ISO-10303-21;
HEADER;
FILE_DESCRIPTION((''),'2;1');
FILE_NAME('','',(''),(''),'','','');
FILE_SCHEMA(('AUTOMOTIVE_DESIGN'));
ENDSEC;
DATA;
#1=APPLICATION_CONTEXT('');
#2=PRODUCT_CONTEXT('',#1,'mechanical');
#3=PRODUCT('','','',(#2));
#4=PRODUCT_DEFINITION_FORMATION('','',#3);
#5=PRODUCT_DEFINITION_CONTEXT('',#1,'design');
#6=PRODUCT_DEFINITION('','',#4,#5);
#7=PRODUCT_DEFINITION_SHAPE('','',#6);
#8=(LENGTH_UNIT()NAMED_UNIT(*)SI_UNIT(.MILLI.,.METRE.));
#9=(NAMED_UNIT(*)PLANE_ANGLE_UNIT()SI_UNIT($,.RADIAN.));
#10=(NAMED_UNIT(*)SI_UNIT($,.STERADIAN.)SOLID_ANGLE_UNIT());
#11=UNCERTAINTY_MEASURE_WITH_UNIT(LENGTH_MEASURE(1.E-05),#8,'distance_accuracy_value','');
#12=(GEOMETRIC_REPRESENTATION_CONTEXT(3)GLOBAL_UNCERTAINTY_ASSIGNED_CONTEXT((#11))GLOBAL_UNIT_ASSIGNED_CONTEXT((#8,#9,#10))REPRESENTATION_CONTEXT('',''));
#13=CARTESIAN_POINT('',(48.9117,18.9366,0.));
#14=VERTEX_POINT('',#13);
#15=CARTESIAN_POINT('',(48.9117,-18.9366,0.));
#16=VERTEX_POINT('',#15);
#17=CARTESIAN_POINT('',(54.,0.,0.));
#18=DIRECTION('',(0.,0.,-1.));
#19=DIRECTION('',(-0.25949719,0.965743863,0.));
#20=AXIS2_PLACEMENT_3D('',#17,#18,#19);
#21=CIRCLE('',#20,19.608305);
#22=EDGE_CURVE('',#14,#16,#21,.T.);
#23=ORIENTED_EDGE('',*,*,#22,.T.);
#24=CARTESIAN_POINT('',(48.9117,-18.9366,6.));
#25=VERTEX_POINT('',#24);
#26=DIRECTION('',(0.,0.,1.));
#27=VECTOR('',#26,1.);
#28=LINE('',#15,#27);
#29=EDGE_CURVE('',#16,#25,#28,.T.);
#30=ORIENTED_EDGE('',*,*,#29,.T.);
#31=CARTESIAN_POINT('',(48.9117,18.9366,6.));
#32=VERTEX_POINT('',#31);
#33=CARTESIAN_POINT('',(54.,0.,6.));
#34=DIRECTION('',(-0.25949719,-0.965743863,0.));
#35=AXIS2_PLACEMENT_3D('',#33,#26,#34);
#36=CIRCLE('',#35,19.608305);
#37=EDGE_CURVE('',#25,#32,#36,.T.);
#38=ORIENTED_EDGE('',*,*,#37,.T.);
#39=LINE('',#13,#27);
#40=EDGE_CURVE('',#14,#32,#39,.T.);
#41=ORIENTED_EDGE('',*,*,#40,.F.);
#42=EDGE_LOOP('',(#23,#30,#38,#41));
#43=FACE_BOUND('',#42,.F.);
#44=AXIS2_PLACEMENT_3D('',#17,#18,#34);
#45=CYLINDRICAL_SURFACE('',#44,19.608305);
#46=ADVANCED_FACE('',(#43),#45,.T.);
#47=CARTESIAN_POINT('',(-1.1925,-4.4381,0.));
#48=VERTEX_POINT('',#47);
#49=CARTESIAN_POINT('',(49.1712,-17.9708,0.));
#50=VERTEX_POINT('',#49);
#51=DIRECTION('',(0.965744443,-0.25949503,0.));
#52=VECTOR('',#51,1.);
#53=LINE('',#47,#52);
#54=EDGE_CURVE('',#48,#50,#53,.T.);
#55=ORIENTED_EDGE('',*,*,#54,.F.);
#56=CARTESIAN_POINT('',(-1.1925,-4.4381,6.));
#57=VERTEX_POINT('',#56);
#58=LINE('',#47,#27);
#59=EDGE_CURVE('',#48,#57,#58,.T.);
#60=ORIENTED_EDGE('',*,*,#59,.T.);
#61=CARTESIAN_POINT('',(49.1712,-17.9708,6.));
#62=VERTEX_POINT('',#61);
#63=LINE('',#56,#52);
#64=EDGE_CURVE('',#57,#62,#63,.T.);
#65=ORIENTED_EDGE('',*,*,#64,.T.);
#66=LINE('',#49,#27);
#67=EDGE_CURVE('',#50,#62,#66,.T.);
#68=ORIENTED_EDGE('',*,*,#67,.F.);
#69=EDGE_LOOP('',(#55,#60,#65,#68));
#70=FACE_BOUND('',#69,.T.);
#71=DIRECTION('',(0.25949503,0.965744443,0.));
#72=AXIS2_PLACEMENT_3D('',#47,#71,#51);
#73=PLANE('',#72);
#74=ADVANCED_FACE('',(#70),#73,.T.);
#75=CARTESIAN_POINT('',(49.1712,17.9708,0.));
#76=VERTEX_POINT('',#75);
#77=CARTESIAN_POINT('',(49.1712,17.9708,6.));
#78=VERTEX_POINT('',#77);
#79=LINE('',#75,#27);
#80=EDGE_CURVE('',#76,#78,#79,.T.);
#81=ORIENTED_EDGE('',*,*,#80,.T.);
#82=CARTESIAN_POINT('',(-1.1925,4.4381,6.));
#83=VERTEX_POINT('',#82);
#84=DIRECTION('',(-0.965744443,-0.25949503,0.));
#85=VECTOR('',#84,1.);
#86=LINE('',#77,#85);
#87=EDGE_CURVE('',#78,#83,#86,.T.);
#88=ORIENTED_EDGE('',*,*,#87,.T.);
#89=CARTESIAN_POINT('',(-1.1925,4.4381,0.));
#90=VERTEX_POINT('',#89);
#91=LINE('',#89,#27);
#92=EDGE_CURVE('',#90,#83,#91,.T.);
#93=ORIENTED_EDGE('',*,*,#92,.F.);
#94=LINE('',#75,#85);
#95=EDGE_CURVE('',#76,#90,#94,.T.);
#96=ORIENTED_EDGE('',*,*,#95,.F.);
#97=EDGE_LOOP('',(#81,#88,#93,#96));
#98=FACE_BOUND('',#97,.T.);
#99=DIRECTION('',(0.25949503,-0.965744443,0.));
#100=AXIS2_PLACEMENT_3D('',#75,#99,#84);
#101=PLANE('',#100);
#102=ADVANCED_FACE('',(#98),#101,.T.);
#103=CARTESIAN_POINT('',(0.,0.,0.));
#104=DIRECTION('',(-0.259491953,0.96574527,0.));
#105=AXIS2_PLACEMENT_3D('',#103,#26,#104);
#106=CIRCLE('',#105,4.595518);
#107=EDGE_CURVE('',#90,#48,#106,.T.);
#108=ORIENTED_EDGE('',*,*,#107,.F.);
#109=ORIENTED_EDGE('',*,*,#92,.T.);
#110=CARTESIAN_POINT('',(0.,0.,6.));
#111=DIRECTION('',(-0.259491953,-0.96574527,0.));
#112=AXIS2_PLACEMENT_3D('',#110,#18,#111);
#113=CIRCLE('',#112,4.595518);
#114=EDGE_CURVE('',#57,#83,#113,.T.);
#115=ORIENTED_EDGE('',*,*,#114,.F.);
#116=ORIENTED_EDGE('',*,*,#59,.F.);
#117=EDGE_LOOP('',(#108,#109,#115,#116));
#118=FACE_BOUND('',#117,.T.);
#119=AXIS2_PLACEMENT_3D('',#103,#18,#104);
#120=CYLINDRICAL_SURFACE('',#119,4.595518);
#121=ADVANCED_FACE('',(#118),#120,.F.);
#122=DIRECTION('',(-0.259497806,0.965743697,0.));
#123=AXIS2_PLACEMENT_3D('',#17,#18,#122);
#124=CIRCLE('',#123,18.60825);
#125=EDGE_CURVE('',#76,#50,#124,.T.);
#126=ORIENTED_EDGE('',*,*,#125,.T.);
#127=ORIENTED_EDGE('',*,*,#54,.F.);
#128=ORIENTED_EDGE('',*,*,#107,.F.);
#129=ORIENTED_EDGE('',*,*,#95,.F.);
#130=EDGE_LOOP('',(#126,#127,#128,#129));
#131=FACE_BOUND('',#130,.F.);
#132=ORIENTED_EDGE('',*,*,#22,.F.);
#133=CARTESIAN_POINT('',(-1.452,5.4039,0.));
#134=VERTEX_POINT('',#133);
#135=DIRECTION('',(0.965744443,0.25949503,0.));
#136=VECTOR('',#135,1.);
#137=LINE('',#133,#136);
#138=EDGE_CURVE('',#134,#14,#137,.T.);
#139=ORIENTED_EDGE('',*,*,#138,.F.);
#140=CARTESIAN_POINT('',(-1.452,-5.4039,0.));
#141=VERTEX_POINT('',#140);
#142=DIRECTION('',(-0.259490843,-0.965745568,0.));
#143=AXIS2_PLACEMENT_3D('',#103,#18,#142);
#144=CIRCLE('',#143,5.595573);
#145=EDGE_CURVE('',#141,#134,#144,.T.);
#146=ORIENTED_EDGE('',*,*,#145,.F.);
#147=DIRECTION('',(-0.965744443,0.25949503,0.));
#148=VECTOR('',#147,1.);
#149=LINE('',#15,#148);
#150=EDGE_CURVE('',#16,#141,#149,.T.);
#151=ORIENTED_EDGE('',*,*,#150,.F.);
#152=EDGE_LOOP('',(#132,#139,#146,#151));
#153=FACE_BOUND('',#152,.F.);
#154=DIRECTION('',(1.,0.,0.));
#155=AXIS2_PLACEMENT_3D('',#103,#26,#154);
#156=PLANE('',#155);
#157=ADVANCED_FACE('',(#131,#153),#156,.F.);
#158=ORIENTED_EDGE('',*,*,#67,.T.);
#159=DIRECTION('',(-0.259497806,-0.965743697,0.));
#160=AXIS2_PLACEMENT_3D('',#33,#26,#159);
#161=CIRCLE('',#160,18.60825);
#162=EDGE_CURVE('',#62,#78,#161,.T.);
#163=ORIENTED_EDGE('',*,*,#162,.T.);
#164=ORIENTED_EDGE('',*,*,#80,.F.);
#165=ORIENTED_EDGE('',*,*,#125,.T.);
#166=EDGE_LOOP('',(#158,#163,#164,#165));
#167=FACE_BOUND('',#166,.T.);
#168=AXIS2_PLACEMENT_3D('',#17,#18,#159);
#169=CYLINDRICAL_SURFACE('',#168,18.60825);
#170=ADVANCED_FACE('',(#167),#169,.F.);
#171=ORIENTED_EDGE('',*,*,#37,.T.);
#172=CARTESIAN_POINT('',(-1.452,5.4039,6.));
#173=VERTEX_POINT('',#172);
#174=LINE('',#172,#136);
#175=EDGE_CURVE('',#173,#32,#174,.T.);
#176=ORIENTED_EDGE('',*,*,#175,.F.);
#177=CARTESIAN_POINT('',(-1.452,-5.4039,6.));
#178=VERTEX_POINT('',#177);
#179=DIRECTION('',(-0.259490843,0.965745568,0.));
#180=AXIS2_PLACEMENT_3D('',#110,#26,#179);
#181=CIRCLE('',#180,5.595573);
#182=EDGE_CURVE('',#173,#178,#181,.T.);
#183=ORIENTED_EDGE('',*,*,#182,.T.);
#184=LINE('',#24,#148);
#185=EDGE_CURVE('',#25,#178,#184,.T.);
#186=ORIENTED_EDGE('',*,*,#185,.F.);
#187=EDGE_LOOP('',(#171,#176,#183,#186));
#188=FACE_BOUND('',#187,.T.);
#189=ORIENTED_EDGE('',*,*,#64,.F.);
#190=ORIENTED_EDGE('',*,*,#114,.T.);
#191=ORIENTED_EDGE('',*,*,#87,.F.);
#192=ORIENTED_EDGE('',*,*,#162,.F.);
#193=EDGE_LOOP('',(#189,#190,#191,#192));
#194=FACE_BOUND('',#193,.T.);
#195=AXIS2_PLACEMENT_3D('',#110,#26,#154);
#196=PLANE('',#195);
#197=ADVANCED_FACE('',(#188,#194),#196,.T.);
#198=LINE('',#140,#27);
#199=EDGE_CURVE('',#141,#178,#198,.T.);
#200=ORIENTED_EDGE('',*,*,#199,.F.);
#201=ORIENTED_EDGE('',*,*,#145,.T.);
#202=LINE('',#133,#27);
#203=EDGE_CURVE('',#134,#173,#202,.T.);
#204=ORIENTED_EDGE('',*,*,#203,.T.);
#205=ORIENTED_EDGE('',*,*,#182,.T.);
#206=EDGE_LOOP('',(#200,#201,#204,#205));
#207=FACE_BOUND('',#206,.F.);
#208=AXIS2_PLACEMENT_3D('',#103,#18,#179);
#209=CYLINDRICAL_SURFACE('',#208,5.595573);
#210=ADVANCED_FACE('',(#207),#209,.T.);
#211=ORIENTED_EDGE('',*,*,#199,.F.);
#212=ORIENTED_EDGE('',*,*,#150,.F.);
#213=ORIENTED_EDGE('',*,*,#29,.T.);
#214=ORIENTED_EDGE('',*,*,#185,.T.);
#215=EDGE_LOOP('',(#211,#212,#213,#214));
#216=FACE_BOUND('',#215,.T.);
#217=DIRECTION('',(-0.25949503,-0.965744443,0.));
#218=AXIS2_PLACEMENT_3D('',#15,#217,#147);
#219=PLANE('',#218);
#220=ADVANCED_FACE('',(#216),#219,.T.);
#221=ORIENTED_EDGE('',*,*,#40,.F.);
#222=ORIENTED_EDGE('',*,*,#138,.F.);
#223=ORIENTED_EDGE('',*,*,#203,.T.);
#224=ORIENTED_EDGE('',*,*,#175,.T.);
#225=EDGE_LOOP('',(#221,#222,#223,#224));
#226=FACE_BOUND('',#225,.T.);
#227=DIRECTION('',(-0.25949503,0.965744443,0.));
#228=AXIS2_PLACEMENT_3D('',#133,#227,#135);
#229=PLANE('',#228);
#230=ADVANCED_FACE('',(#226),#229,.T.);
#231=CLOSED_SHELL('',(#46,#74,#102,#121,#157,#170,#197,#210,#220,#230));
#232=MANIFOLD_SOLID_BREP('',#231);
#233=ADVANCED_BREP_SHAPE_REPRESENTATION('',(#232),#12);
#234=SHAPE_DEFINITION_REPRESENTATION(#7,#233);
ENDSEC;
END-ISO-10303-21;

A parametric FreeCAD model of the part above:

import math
import FreeCAD as App
import Part
import Sketcher
from FreeCAD import Vector
Q = App.Units.Quantity

doc = App.newDocument("Part")
body = doc.addObject("PartDesign::Body", "Body")

# Sketch on XY plane
sketch1 = body.newObject("Sketcher::SketchObject", "Sketch")
sketch1.AttachmentSupport = (doc.getObject("XY_Plane"), [""])
sketch1.MapMode = "FlatFace"
sketch1.addGeometry([
    Part.ArcOfCircle(Part.Circle(Vector(0, 0, 0), Vector(0, 0, 1), 5.595573), math.radians(105.039853), math.radians(254.960147)),  # 0
    Part.LineSegment(Vector(-1.452, -5.4039, 0), Vector(48.9117, -18.9366, 0)),  # 1
    Part.ArcOfCircle(Part.Circle(Vector(54, 0, 0), Vector(0, 0, 1), 19.608305), math.radians(-105.040229), math.radians(105.040229)),  # 2
    Part.LineSegment(Vector(48.9117, 18.9366, 0), Vector(-1.452, 5.4039, 0)),  # 3
    Part.ArcOfCircle(Part.Circle(Vector(54, 0, 0), Vector(0, 0, 1), 18.60825), math.radians(-105.040266), math.radians(105.040266)),  # 4
    Part.LineSegment(Vector(49.1712, -17.9708, 0), Vector(-1.1925, -4.4381, 0)),  # 5
    Part.ArcOfCircle(Part.Circle(Vector(0, 0, 0), Vector(0, 0, 1), 4.595518), math.radians(105.039919), math.radians(254.960081)),  # 6
    Part.LineSegment(Vector(-1.1925, 4.4381, 0), Vector(49.1712, 17.9708, 0)),  # 7
], False)
sketch1.addConstraint([
    Sketcher.Constraint("Tangent", 0, 2, 1, 1),
    Sketcher.Constraint("Tangent", 1, 2, 2, 1),
    Sketcher.Constraint("Tangent", 2, 2, 3, 1),
    Sketcher.Constraint("Tangent", 3, 2, 0, 1),
    Sketcher.Constraint("Tangent", 4, 1, 5, 1),
    Sketcher.Constraint("Tangent", 5, 2, 6, 2),
    Sketcher.Constraint("Tangent", 6, 1, 7, 1),
    Sketcher.Constraint("Tangent", 7, 2, 4, 2),
    Sketcher.Constraint("Coincident", 0, 3, -1, 1),
    Sketcher.Constraint("Coincident", 6, 3, -1, 1),
    Sketcher.Constraint("Coincident", 4, 3, 2, 3),
    Sketcher.Constraint("PointOnObject", 2, 3, -1),
    Sketcher.Constraint("Parallel", 1, 5),
    Sketcher.Constraint("DistanceX", -1, 1, 2, 3, 54.0),
    Sketcher.Constraint("Angle", 1, Q("-15.04 deg")),
    Sketcher.Constraint("Radius", 0, 5.5956),
    Sketcher.Constraint("Radius", 4, 18.6082),
])
pad1 = body.newObject("PartDesign::Pad", "Pad")
pad1.Profile = sketch1
pad1.Length = 6

doc.recompute()
